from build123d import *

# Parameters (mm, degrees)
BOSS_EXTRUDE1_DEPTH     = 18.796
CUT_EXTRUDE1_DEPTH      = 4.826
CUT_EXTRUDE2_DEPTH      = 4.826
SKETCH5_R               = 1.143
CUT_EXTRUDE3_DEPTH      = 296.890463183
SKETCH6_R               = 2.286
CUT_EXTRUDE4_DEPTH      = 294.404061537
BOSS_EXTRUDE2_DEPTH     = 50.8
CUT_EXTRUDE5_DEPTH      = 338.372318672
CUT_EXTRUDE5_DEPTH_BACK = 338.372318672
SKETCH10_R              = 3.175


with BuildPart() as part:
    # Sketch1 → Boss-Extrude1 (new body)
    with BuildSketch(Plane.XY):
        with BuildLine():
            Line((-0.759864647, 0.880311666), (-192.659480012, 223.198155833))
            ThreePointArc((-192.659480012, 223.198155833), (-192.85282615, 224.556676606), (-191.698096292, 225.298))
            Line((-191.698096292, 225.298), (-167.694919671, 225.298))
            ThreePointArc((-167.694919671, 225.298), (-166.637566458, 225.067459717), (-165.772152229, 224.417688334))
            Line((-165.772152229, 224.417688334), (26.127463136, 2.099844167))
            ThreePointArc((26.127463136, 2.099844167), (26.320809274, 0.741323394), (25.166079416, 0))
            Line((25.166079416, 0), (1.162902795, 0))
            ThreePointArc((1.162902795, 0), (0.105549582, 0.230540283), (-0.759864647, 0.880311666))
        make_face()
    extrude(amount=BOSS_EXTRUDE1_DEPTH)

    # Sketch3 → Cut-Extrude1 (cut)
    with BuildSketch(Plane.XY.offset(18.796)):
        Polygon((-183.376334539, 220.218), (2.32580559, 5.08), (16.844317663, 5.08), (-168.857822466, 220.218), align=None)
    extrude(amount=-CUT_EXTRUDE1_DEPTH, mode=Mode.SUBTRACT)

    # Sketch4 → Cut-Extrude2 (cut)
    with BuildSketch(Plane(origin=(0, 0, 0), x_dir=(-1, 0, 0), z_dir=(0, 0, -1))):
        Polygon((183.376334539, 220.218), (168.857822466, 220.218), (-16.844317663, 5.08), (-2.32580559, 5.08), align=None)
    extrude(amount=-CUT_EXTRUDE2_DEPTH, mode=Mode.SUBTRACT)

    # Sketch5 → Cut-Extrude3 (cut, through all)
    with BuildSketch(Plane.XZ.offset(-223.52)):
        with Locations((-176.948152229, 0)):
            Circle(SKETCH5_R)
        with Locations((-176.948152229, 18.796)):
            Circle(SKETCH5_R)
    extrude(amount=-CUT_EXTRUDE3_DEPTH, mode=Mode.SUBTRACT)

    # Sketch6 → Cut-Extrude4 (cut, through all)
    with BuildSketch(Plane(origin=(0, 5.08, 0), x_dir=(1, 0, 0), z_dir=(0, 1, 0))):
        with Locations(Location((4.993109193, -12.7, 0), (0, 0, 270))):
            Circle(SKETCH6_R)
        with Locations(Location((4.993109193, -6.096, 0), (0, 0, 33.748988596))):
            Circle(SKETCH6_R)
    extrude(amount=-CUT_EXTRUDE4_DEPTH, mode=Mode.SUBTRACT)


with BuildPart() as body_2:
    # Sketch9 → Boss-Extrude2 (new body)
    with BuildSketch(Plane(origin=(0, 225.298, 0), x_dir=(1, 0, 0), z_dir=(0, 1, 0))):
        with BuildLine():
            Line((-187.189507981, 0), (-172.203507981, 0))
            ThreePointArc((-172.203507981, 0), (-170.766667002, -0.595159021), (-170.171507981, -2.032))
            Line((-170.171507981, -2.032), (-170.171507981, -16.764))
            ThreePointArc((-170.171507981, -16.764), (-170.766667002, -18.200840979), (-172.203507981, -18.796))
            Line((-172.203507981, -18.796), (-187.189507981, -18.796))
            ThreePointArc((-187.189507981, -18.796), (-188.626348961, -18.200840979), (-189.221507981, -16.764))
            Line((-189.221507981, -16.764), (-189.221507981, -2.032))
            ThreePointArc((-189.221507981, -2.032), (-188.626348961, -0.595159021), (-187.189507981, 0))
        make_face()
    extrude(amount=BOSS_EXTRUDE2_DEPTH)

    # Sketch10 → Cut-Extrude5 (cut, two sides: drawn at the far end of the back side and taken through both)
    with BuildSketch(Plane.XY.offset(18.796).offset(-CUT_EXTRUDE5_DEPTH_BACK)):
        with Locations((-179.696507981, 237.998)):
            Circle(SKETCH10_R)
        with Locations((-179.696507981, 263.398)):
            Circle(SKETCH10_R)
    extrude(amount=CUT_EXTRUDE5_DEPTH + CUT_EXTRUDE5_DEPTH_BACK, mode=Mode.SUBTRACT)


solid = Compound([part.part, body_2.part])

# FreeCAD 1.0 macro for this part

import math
import FreeCAD as App
import Part
import Sketcher

V = App.Vector
Q = App.Units.Quantity

doc = App.newDocument("Part")
body = doc.addObject("PartDesign::Body", "Body")

sketch1 = body.newObject("Sketcher::SketchObject", "Sketch")
sketch1.AttachmentSupport = (doc.getObject("XY_Plane"), [""])
sketch1.MapMode = "FlatFace"
sketch1.addGeometry([
    Part.LineSegment(V(-192.65948, 223.198156, 0), V(-0.759865, 0.880312, 0)),
    Part.ArcOfCircle(Part.Circle(V(1.162903, 2.54, 0), V(0, 0, 1), 2.54), math.radians(-139.2), math.radians(-90)),
    Part.LineSegment(V(1.162903, 0, 0), V(25.166079, 0, 0)),
    Part.ArcOfCircle(Part.Circle(V(25.166079, 1.27, 0), V(0, 0, 1), 1.27), math.radians(-90), math.radians(40.8)),
    Part.LineSegment(V(26.127463, 2.099844, 0), V(-165.772152, 224.417688, 0)),
    Part.ArcOfCircle(Part.Circle(V(-167.69492, 222.758, 0), V(0, 0, 1), 2.54), math.radians(40.8), math.radians(90)),
    Part.LineSegment(V(-167.69492, 225.298, 0), V(-191.698096, 225.298, 0)),
    Part.ArcOfCircle(Part.Circle(V(-191.698096, 224.028, 0), V(0, 0, 1), 1.27), math.radians(90), math.radians(220.8)),
], False)
sketch1.addConstraint([
    Sketcher.Constraint("Tangent", 0, 2, 1, 1),
    Sketcher.Constraint("Tangent", 1, 2, 2, 1),
    Sketcher.Constraint("Tangent", 2, 2, 3, 1),
    Sketcher.Constraint("Tangent", 3, 2, 4, 1),
    Sketcher.Constraint("Tangent", 4, 2, 5, 1),
    Sketcher.Constraint("Tangent", 5, 2, 6, 1),
    Sketcher.Constraint("Tangent", 6, 2, 7, 1),
    Sketcher.Constraint("Tangent", 7, 2, 0, 1),
    Sketcher.Constraint("Horizontal", 2),
    Sketcher.Constraint("Horizontal", 6),
    Sketcher.Constraint("Equal", 1, 5),
    Sketcher.Constraint("Equal", 3, 7),
    Sketcher.Constraint("PointOnObject", 1, 2, -1),
    Sketcher.Constraint("Parallel", 0, 4),
    Sketcher.Constraint("Radius", 1, Q("0.1 in")),
    Sketcher.Constraint("Radius", 3, Q("0.05 in")),
    Sketcher.Constraint("Angle", 0, Q("-49.2 deg")),
    Sketcher.Constraint("DistanceY", -1, 1, 5, 3, Q("8.77 in")),
    Sketcher.Constraint("DistanceX", 2, 1, 2, 2, 24.003177),
    Sketcher.Constraint("DistanceX", -1, 1, 3, 3, 25.166079),
])
pad1 = body.newObject("PartDesign::Pad", "Pad")
pad1.Profile = sketch1
pad1.Length = Q("0.74 in")

sketch2 = body.newObject("Sketcher::SketchObject", "Sketch001")
sketch2.AttachmentSupport = (doc.getObject("XY_Plane"), [""])
sketch2.MapMode = "FlatFace"
sketch2.AttachmentOffset = App.Placement(V(0, 0, 0.74 * 25.4), App.Rotation())
sketch2.addGeometry([
    Part.LineSegment(V(-183.376335, 220.218, 0), V(2.325806, 5.08, 0)),
    Part.LineSegment(V(2.325806, 5.08, 0), V(16.844318, 5.08, 0)),
    Part.LineSegment(V(16.844318, 5.08, 0), V(-168.857822, 220.218, 0)),
    Part.LineSegment(V(-168.857822, 220.218, 0), V(-183.376335, 220.218, 0)),
], False)
sketch2.addConstraint([
    Sketcher.Constraint("Coincident", 0, 2, 1, 1),
    Sketcher.Constraint("Coincident", 1, 2, 2, 1),
    Sketcher.Constraint("Coincident", 2, 2, 3, 1),
    Sketcher.Constraint("Coincident", 3, 2, 0, 1),
    Sketcher.Constraint("Horizontal", 1),
    Sketcher.Constraint("Horizontal", 3),
    Sketcher.Constraint("Parallel", 0, 2),
    Sketcher.Constraint("DistanceY", -1, 1, 0, 2, Q("0.2 in")),
    Sketcher.Constraint("Angle", 0, Q("-49.2 deg")),
    Sketcher.Constraint("DistanceY", -1, 1, 2, 2, Q("8.67 in")),
    Sketcher.Constraint("DistanceX", 1, 1, 1, 2, 14.518512),
    Sketcher.Constraint("DistanceX", -1, 1, 0, 2, 2.325806),
])
pocket1 = body.newObject("PartDesign::Pocket", "Pocket")
pocket1.Profile = sketch2
pocket1.Length = Q("0.19 in")

sketch3 = body.newObject("Sketcher::SketchObject", "Sketch002")
sketch3.AttachmentSupport = (doc.getObject("XY_Plane"), [""])
sketch3.MapMode = "FlatFace"
sketch3.addGeometry([
    Part.LineSegment(V(-183.376335, 220.218, 0), V(-168.857822, 220.218, 0)),
    Part.LineSegment(V(-168.857822, 220.218, 0), V(16.844318, 5.08, 0)),
    Part.LineSegment(V(16.844318, 5.08, 0), V(2.325806, 5.08, 0)),
    Part.LineSegment(V(2.325806, 5.08, 0), V(-183.376335, 220.218, 0)),
], False)
sketch3.addConstraint([
    Sketcher.Constraint("Coincident", 0, 2, 1, 1),
    Sketcher.Constraint("Coincident", 1, 2, 2, 1),
    Sketcher.Constraint("Coincident", 2, 2, 3, 1),
    Sketcher.Constraint("Coincident", 3, 2, 0, 1),
    Sketcher.Constraint("Horizontal", 0),
    Sketcher.Constraint("Horizontal", 2),
    Sketcher.Constraint("Parallel", 1, 3),
    Sketcher.Constraint("DistanceY", -1, 1, 1, 2, Q("0.2 in")),
    Sketcher.Constraint("Angle", 1, Q("-49.2 deg")),
    Sketcher.Constraint("DistanceY", -1, 1, 0, 2, Q("8.67 in")),
    Sketcher.Constraint("DistanceX", 0, 1, 0, 2, 14.518512),
    Sketcher.Constraint("DistanceX", 0, 2, -1, 1, 168.857822),
])
pocket2 = body.newObject("PartDesign::Pocket", "Pocket001")
pocket2.Profile = sketch3
pocket2.Length = Q("0.19 in")
pocket2.Reversed = True

sketch4 = body.newObject("Sketcher::SketchObject", "Sketch003")
sketch4.AttachmentSupport = (doc.getObject("XZ_Plane"), [""])
sketch4.MapMode = "FlatFace"
sketch4.AttachmentOffset = App.Placement(V(0, 0, -8.8 * 25.4), App.Rotation())
sketch4.addGeometry([
    Part.Circle(V(-176.948152, 0, 0), V(0, 0, 1), 1.143),
    Part.Circle(V(-176.948152, 18.796, 0), V(0, 0, 1), 1.143),
], False)
sketch4.addConstraint([
    Sketcher.Constraint("Equal", 0, 1),
    Sketcher.Constraint("PointOnObject", 0, 3, -1),
    Sketcher.Constraint("Vertical", 0, 3, 1, 3),
    Sketcher.Constraint("Diameter", 0, Q("0.09 in")),
    Sketcher.Constraint("DistanceY", -1, 1, 1, 3, Q("0.74 in")),
    Sketcher.Constraint("DistanceX", 0, 3, -1, 1, 176.948152),
])
pocket3 = body.newObject("PartDesign::Pocket", "Pocket002")
pocket3.Profile = sketch4
pocket3.Type = "ThroughAll"

sketch5 = body.newObject("Sketcher::SketchObject", "Sketch004")
sketch5.AttachmentSupport = (doc.getObject("XZ_Plane"), [""])
sketch5.MapMode = "FlatFace"
sketch5.AttachmentOffset = App.Placement(V(0, 0, -0.2 * 25.4), App.Rotation())
sketch5.addGeometry([
    Part.Circle(V(4.993109, 12.7, 0), V(0, 0, 1), 2.286),
    Part.Circle(V(4.993109, 6.096, 0), V(0, 0, 1), 2.286),
], False)
sketch5.addConstraint([
    Sketcher.Constraint("Equal", 0, 1),
    Sketcher.Constraint("Vertical", 0, 3, 1, 3),
    Sketcher.Constraint("Diameter", 0, Q("0.18 in")),
    Sketcher.Constraint("DistanceY", -1, 1, 0, 3, Q("0.5 in")),
    Sketcher.Constraint("DistanceY", -1, 1, 1, 3, Q("0.24 in")),
    Sketcher.Constraint("DistanceX", -1, 1, 0, 3, 4.993109),
])
pocket4 = body.newObject("PartDesign::Pocket", "Pocket003")
pocket4.Profile = sketch5
pocket4.Type = "ThroughAll"
pocket4.Reversed = True
body2 = doc.addObject("PartDesign::Body", "Body001")

sketch6 = body2.newObject("Sketcher::SketchObject", "Sketch005")
sketch6.AttachmentSupport = (doc.getObject("XZ_Plane001"), [""])
sketch6.MapMode = "FlatFace"
sketch6.AttachmentOffset = App.Placement(V(0, 0, -8.87 * 25.4), App.Rotation())
sketch6.addGeometry([
    Part.LineSegment(V(-172.203508, 0, 0), V(-187.189508, 0, 0)),
    Part.ArcOfCircle(Part.Circle(V(-187.189508, 2.032, 0), V(0, 0, 1), 2.032), math.radians(180), math.radians(270)),
    Part.LineSegment(V(-189.221508, 2.032, 0), V(-189.221508, 16.764, 0)),
    Part.ArcOfCircle(Part.Circle(V(-187.189508, 16.764, 0), V(0, 0, 1), 2.032), math.radians(90), math.radians(180)),
    Part.LineSegment(V(-187.189508, 18.796, 0), V(-172.203508, 18.796, 0)),
    Part.ArcOfCircle(Part.Circle(V(-172.203508, 16.764, 0), V(0, 0, 1), 2.032), math.radians(0), math.radians(90)),
    Part.LineSegment(V(-170.171508, 16.764, 0), V(-170.171508, 2.032, 0)),
    Part.ArcOfCircle(Part.Circle(V(-172.203508, 2.032, 0), V(0, 0, 1), 2.032), math.radians(-90), math.radians(0)),
], False)
sketch6.addConstraint([
    Sketcher.Constraint("Tangent", 0, 2, 1, 2),
    Sketcher.Constraint("Tangent", 1, 1, 2, 1),
    Sketcher.Constraint("Tangent", 2, 2, 3, 2),
    Sketcher.Constraint("Tangent", 3, 1, 4, 1),
    Sketcher.Constraint("Tangent", 4, 2, 5, 2),
    Sketcher.Constraint("Tangent", 5, 1, 6, 1),
    Sketcher.Constraint("Tangent", 6, 2, 7, 2),
    Sketcher.Constraint("Tangent", 7, 1, 0, 1),
    Sketcher.Constraint("Horizontal", 0),
    Sketcher.Constraint("Vertical", 2),
    Sketcher.Constraint("Horizontal", 4),
    Sketcher.Constraint("Vertical", 6),
    Sketcher.Constraint("Equal", 1, 3),
    Sketcher.Constraint("Equal", 3, 5),
    Sketcher.Constraint("Equal", 5, 7),
    Sketcher.Constraint("PointOnObject", 0, 2, -1),
    Sketcher.Constraint("Radius", 1, Q("0.08 in")),
    Sketcher.Constraint("DistanceX", 0, 2, 0, 1, Q("0.59 in")),
    Sketcher.Constraint("DistanceY", 2, 1, 2, 2, Q("0.58 in")),
    Sketcher.Constraint("DistanceX", 1, 3, -1, 1, 187.189508),
])
pad2 = body2.newObject("PartDesign::Pad", "Pad001")
pad2.Profile = sketch6
pad2.Length = Q("2 in")
pad2.Reversed = True

sketch7 = body2.newObject("Sketcher::SketchObject", "Sketch006")
sketch7.AttachmentSupport = (doc.getObject("XY_Plane001"), [""])
sketch7.MapMode = "FlatFace"
sketch7.AttachmentOffset = App.Placement(V(0, 0, 0.74 * 25.4), App.Rotation())
sketch7.addGeometry([
    Part.Circle(V(-179.696508, 237.998, 0), V(0, 0, 1), 3.175),
    Part.Circle(V(-179.696508, 263.398, 0), V(0, 0, 1), 3.175),
], False)
sketch7.addConstraint([
    Sketcher.Constraint("Equal", 0, 1),
    Sketcher.Constraint("Vertical", 0, 3, 1, 3),
    Sketcher.Constraint("Diameter", 0, Q("0.25 in")),
    Sketcher.Constraint("DistanceY", 0, 3, 1, 3, Q("1 in")),
    Sketcher.Constraint("DistanceY", -1, 1, 0, 3, Q("9.37 in")),
    Sketcher.Constraint("DistanceX", 0, 3, -1, 1, 179.696508),
])
pocket5 = body2.newObject("PartDesign::Pocket", "Pocket004")
pocket5.Profile = sketch7
pocket5.Type = "ThroughAll"
pocket5.Midplane = True

doc.recompute()
